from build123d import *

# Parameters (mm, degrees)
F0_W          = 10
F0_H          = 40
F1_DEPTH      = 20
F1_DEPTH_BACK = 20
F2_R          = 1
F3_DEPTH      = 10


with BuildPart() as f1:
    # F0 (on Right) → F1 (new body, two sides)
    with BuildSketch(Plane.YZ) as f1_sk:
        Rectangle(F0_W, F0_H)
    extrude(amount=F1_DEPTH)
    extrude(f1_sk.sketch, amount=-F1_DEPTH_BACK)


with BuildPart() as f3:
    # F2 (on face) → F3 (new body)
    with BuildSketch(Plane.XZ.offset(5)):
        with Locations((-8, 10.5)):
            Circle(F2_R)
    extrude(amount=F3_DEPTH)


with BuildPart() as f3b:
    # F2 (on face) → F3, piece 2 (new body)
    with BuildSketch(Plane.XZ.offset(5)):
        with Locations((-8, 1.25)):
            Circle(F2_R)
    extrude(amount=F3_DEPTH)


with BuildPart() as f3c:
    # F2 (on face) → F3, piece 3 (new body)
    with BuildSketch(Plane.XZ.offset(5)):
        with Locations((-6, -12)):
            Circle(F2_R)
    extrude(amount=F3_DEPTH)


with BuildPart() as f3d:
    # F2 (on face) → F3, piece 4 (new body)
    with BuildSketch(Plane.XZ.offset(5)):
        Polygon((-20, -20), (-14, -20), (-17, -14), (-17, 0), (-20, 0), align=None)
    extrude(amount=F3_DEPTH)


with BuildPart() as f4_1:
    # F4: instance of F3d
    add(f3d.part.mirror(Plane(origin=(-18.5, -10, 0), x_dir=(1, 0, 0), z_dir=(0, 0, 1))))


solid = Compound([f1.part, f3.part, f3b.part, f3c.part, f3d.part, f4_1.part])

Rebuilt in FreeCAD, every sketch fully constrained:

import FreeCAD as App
import Part
import Sketcher
from FreeCAD import Vector


def add_polygon(sketch, points):
    """Adds a closed chain of lines whose ends are joined by coincident constraints."""
    first, n = sketch.GeometryCount, len(points)
    for a, b in zip(points, points[1:] + points[:1]):
        sketch.addGeometry(Part.LineSegment(App.Vector(*a, 0), App.Vector(*b, 0)), False)
    for i in range(n):
        sketch.addConstraint(Sketcher.Constraint("Coincident", first + i, 2, first + (i + 1) % n, 1))

doc = App.newDocument("Part")
params = doc.addObject("Spreadsheet::Sheet", "Params")
for row, (alias, value) in enumerate([
    ("sketch1_width", "10 mm"),
    ("sketch1_height", "40 mm"),
    ("pad1_length", "20 mm"),
    ("pad1_length2", "20 mm"),
    ("sketch2_diameter", "2 mm"),
    ("pad2_length", "10 mm"),
    ("sketch3_diameter", "2 mm"),
    ("pad3_length", "10 mm"),
    ("sketch4_diameter", "2 mm"),
    ("pad4_length", "10 mm"),
    ("sketch5_width", "6 mm"),
    ("sketch5_width2", "3 mm"),
    ("sketch5_height", "14 mm"),
    ("sketch5_height2", "20 mm"),
    ("pad5_length", "10 mm"),
], start=1):
    params.set(f"A{row}", alias)
    params.set(f"B{row}", "=" + value)
    params.setAlias(f"B{row}", alias)

body = doc.addObject("PartDesign::Body", "Body")

# Sketch on YZ plane
sketch1 = body.newObject("Sketcher::SketchObject", "Sketch")
sketch1.AttachmentSupport = (doc.getObject("YZ_Plane"), [""])
sketch1.MapMode = "FlatFace"
add_polygon(sketch1, [(-5, 20), (-5, -20), (5, -20), (5, 20)])  # lines 0-3
sketch1.addConstraint([
    Sketcher.Constraint("Vertical", 0),
    Sketcher.Constraint("Horizontal", 1),
    Sketcher.Constraint("Vertical", 2),
    Sketcher.Constraint("Horizontal", 3),
    Sketcher.Constraint("Symmetric", 0, 2, 2, 2, -1, 1),
    Sketcher.Constraint("DistanceX", 1, 1, 1, 2, 10.0),
    Sketcher.Constraint("DistanceY", 0, 2, 0, 1, 40.0),
])
sketch1.setExpression("Constraints[9]", "Params.sketch1_width")
sketch1.setExpression("Constraints[10]", "Params.sketch1_height")
pad1 = body.newObject("PartDesign::Pad", "Pad")
pad1.Profile = sketch1
pad1.Type = "TwoLengths"
pad1.setExpression("Length", "Params.pad1_length")
pad1.setExpression("Length2", "Params.pad1_length2")
body2 = doc.addObject("PartDesign::Body", "Body001")

# Sketch on XZ plane
sketch2 = body2.newObject("Sketcher::SketchObject", "Sketch001")
sketch2.AttachmentSupport = (doc.getObject("XZ_Plane001"), [""])
sketch2.MapMode = "FlatFace"
sketch2.AttachmentOffset = App.Placement(Vector(0, 0, 5), App.Rotation())
sketch2.addGeometry(Part.Circle(Vector(-8, 10.5, 0), Vector(0, 0, 1), 1), False)
sketch2.addConstraint([
    Sketcher.Constraint("Diameter", 0, 2.0),
    Sketcher.Constraint("DistanceX", 0, 3, -1, 1, 8.0),
    Sketcher.Constraint("DistanceY", -1, 1, 0, 3, 10.5),
])
sketch2.setExpression("Constraints[0]", "Params.sketch2_diameter")
pad2 = body2.newObject("PartDesign::Pad", "Pad001")
pad2.Profile = sketch2
pad2.setExpression("Length", "Params.pad2_length")
body3 = doc.addObject("PartDesign::Body", "Body002")

# Sketch on XZ plane
sketch3 = body3.newObject("Sketcher::SketchObject", "Sketch002")
sketch3.AttachmentSupport = (doc.getObject("XZ_Plane002"), [""])
sketch3.MapMode = "FlatFace"
sketch3.AttachmentOffset = App.Placement(Vector(0, 0, 5), App.Rotation())
sketch3.addGeometry(Part.Circle(Vector(-8, 1.2, 0), Vector(0, 0, 1), 1), False)
sketch3.addConstraint([
    Sketcher.Constraint("Diameter", 0, 2.0),
    Sketcher.Constraint("DistanceX", 0, 3, -1, 1, 8.0),
    Sketcher.Constraint("DistanceY", -1, 1, 0, 3, 1.25),
])
sketch3.setExpression("Constraints[0]", "Params.sketch3_diameter")
pad3 = body3.newObject("PartDesign::Pad", "Pad002")
pad3.Profile = sketch3
pad3.setExpression("Length", "Params.pad3_length")
body4 = doc.addObject("PartDesign::Body", "Body003")

# Sketch on XZ plane
sketch4 = body4.newObject("Sketcher::SketchObject", "Sketch003")
sketch4.AttachmentSupport = (doc.getObject("XZ_Plane003"), [""])
sketch4.MapMode = "FlatFace"
sketch4.AttachmentOffset = App.Placement(Vector(0, 0, 5), App.Rotation())
sketch4.addGeometry(Part.Circle(Vector(-6, -12, 0), Vector(0, 0, 1), 1), False)
sketch4.addConstraint([
    Sketcher.Constraint("Diameter", 0, 2.0),
    Sketcher.Constraint("DistanceX", 0, 3, -1, 1, 6.0),
    Sketcher.Constraint("DistanceY", 0, 3, -1, 1, 12.0),
])
sketch4.setExpression("Constraints[0]", "Params.sketch4_diameter")
pad4 = body4.newObject("PartDesign::Pad", "Pad003")
pad4.Profile = sketch4
pad4.setExpression("Length", "Params.pad4_length")
body5 = doc.addObject("PartDesign::Body", "Body004")

# Sketch on XZ plane
sketch5 = body5.newObject("Sketcher::SketchObject", "Sketch004")
sketch5.AttachmentSupport = (doc.getObject("XZ_Plane004"), [""])
sketch5.MapMode = "FlatFace"
sketch5.AttachmentOffset = App.Placement(Vector(0, 0, 5), App.Rotation())
add_polygon(sketch5, [(-20, -20), (-14, -20), (-17, -14), (-17, 0), (-20, 0)])  # lines 0-4
sketch5.addConstraint([
    Sketcher.Constraint("Horizontal", 0),
    Sketcher.Constraint("Vertical", 2),
    Sketcher.Constraint("Horizontal", 3),
    Sketcher.Constraint("Vertical", 4),
    Sketcher.Constraint("PointOnObject", 2, 2, -1),
    Sketcher.Constraint("DistanceX", 0, 1, 0, 2, 6.0),
    Sketcher.Constraint("DistanceX", 3, 2, 3, 1, 3.0),
    Sketcher.Constraint("DistanceY", 2, 1, 2, 2, 14.0),
    Sketcher.Constraint("DistanceY", 4, 2, 4, 1, 20.0),
    Sketcher.Constraint("DistanceX", 0, 2, -1, 1, 14.0),
])
sketch5.setExpression("Constraints[10]", "Params.sketch5_width")
sketch5.setExpression("Constraints[11]", "Params.sketch5_width2")
sketch5.setExpression("Constraints[12]", "Params.sketch5_height")
sketch5.setExpression("Constraints[13]", "Params.sketch5_height2")
pad5 = body5.newObject("PartDesign::Pad", "Pad004")
pad5.Profile = sketch5
pad5.setExpression("Length", "Params.pad5_length")
body6 = doc.addObject("PartDesign::Body", "Body005")
doc.recompute()

mirroring = doc.addObject("Part::Mirroring", "Mirroring")
mirroring.Source = body5
mirroring.Base = Vector(-18.5, -10, 0)
mirroring.Normal = Vector(0, 0, 1)
body6.BaseFeature = mirroring
doc.recompute()
mirroring.Visibility = False

doc.recompute()
